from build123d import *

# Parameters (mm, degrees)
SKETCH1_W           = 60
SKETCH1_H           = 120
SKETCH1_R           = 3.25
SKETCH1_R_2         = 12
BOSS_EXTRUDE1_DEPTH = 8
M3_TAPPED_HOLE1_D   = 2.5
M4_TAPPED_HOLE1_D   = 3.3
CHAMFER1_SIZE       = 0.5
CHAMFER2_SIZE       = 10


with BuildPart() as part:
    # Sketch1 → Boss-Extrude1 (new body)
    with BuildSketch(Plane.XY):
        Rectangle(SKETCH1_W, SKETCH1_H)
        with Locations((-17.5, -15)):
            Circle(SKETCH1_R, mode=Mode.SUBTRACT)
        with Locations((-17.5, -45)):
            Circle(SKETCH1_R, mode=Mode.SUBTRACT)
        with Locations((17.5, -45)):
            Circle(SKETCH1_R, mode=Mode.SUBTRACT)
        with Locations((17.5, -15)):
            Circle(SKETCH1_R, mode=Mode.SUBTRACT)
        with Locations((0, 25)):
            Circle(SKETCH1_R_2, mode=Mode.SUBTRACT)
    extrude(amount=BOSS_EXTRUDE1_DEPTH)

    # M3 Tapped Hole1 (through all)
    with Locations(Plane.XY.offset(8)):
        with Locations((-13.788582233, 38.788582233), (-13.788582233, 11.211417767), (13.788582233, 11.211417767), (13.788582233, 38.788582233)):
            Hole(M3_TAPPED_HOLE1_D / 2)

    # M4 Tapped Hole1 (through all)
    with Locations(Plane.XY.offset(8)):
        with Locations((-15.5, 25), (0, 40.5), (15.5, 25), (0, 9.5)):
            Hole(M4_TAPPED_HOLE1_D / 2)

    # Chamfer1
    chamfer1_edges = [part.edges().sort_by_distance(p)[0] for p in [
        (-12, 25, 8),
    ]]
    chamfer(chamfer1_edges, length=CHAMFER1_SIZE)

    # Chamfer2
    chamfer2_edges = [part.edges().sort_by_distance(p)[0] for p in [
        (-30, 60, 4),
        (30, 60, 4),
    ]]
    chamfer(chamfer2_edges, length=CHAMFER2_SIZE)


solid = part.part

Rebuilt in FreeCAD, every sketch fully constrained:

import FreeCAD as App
import Part
import Sketcher

V = App.Vector
Q = App.Units.Quantity


def edges_at(feature, points):
    """Names of the edges that pass closest to the given points."""
    edges = feature.Shape.Edges
    near = lambda p: min(range(len(edges)), key=lambda i: edges[i].distToShape(Part.Vertex(*p))[0])
    return sorted({f"Edge{near(p) + 1}" for p in points})


def add_polygon(sketch, points):
    """Adds a closed chain of lines whose ends are joined by coincident constraints."""
    first, n = sketch.GeometryCount, len(points)
    for a, b in zip(points, points[1:] + points[:1]):
        sketch.addGeometry(Part.LineSegment(App.Vector(*a, 0), App.Vector(*b, 0)), False)
    for i in range(n):
        sketch.addConstraint(Sketcher.Constraint("Coincident", first + i, 2, first + (i + 1) % n, 1))

doc = App.newDocument("Part")
body = doc.addObject("PartDesign::Body", "Body")

sketch1 = body.newObject("Sketcher::SketchObject", "Sketch")
sketch1.AttachmentSupport = (doc.getObject("XY_Plane"), [""])
sketch1.MapMode = "FlatFace"
add_polygon(sketch1, [(-30, 60), (-30, -60), (30, -60), (30, 60)])
sketch1.addGeometry(Part.Circle(V(-17.5, -45, 0), V(0, 0, 1), 3.2), False)
sketch1.addGeometry(Part.Circle(V(-17.5, -15, 0), V(0, 0, 1), 3.2), False)
sketch1.addGeometry(Part.Circle(V(17.5, -45, 0), V(0, 0, 1), 3.2), False)
sketch1.addGeometry(Part.Circle(V(17.5, -15, 0), V(0, 0, 1), 3.2), False)
sketch1.addGeometry(Part.Circle(V(0, 25, 0), V(0, 0, 1), 12), False)
sketch1.addConstraint([
    Sketcher.Constraint("Vertical", 0),
    Sketcher.Constraint("Horizontal", 1),
    Sketcher.Constraint("Vertical", 2),
    Sketcher.Constraint("Horizontal", 3),
    Sketcher.Constraint("Equal", 4, 5),
    Sketcher.Constraint("Equal", 5, 6),
    Sketcher.Constraint("Equal", 6, 7),
    Sketcher.Constraint("Symmetric", 0, 2, 2, 2, -1, 1),
    Sketcher.Constraint("Symmetric", 4, 3, 6, 3, -2),
    Sketcher.Constraint("Symmetric", 5, 3, 7, 3, -2),
    Sketcher.Constraint("PointOnObject", 8, 3, -2),
    Sketcher.Constraint("Vertical", 4, 3, 5, 3),
    Sketcher.Constraint("Diameter", 8, Q("24 mm")),
    Sketcher.Constraint("Diameter", 4, Q("6.5 mm")),
    Sketcher.Constraint("DistanceX", 1, 1, 1, 2, Q("60 mm")),
    Sketcher.Constraint("DistanceY", 0, 2, 0, 1, Q("120 mm")),
    Sketcher.Constraint("DistanceY", 4, 3, -1, 1, Q("45 mm")),
    Sketcher.Constraint("DistanceY", 5, 3, -1, 1, Q("15 mm")),
    Sketcher.Constraint("DistanceY", -1, 1, 8, 3, Q("25 mm")),
    Sketcher.Constraint("DistanceX", 4, 3, 6, 3, Q("35 mm")),
])
pad1 = body.newObject("PartDesign::Pad", "Pad")
pad1.Profile = sketch1
pad1.Length = 8

sketch2 = body.newObject("Sketcher::SketchObject", "Sketch001")
sketch2.AttachmentSupport = (doc.getObject("XY_Plane"), [""])
sketch2.MapMode = "FlatFace"
sketch2.AttachmentOffset = App.Placement(V(0, 0, 8), App.Rotation())
sketch2.addGeometry([
    Part.Circle(V(-13.8, 38.8, 0), V(0, 0, 1), 1.2),
    Part.Circle(V(-13.8, 11.2, 0), V(0, 0, 1), 1.2),
    Part.Circle(V(13.8, 11.2, 0), V(0, 0, 1), 1.2),
    Part.Circle(V(13.8, 38.8, 0), V(0, 0, 1), 1.2),
], False)
sketch2.addConstraint([
    Sketcher.Constraint("Equal", 0, 1),
    Sketcher.Constraint("Equal", 1, 2),
    Sketcher.Constraint("Equal", 2, 3),
    Sketcher.Constraint("Symmetric", 1, 3, 2, 3, -2),
    Sketcher.Constraint("Symmetric", 0, 3, 3, 3, -2),
    Sketcher.Constraint("Vertical", 0, 3, 1, 3),
    Sketcher.Constraint("Diameter", 0, Q("2.5 mm")),
    Sketcher.Constraint("DistanceX", 0, 3, -1, 1, Q("13.788582 mm")),
    Sketcher.Constraint("DistanceY", -1, 1, 0, 3, Q("38.788582 mm")),
    Sketcher.Constraint("DistanceY", -1, 1, 1, 3, Q("11.211418 mm")),
])
doc.recompute()
hole = body.newObject("PartDesign::Hole", "Hole")
hole.Profile = sketch2
hole.ThreadType = "None"
hole.Diameter = 2.5
hole.DepthType = "ThroughAll"

sketch3 = body.newObject("Sketcher::SketchObject", "Sketch002")
sketch3.AttachmentSupport = (doc.getObject("XY_Plane"), [""])
sketch3.MapMode = "FlatFace"
sketch3.AttachmentOffset = App.Placement(V(0, 0, 8), App.Rotation())
sketch3.addGeometry([
    Part.Circle(V(-15.5, 25, 0), V(0, 0, 1), 1.6),
    Part.Circle(V(0, 40.5, 0), V(0, 0, 1), 1.6),
    Part.Circle(V(15.5, 25, 0), V(0, 0, 1), 1.6),
    Part.Circle(V(0, 9.5, 0), V(0, 0, 1), 1.6),
], False)
sketch3.addConstraint([
    Sketcher.Constraint("Equal", 0, 1),
    Sketcher.Constraint("Equal", 1, 2),
    Sketcher.Constraint("Equal", 2, 3),
    Sketcher.Constraint("Symmetric", 0, 3, 2, 3, -2),
    Sketcher.Constraint("PointOnObject", 1, 3, -2),
    Sketcher.Constraint("PointOnObject", 3, 3, -2),
    Sketcher.Constraint("Diameter", 0, Q("3.3 mm")),
    Sketcher.Constraint("DistanceY", -1, 1, 0, 3, Q("25 mm")),
    Sketcher.Constraint("DistanceX", 0, 3, 2, 3, Q("31 mm")),
    Sketcher.Constraint("DistanceY", 3, 3, 1, 3, Q("31 mm")),
    Sketcher.Constraint("DistanceY", -1, 1, 1, 3, Q("40.5 mm")),
])
doc.recompute()
hole2 = body.newObject("PartDesign::Hole", "Hole001")
hole2.Profile = sketch3
hole2.ThreadType = "None"
hole2.Diameter = 3.3
hole2.DepthType = "ThroughAll"
doc.recompute()

chamfer = body.newObject("PartDesign::Chamfer", "Chamfer")
chamfer.Base = (hole2, edges_at(hole2, [(-12, 25, 8)]))
chamfer.Size = 0.5
doc.recompute()

chamfer2 = body.newObject("PartDesign::Chamfer", "Chamfer001")
chamfer2.Base = (chamfer, edges_at(chamfer, [(-30, 60, 4), (30, 60, 4)]))
chamfer2.Size = 10

doc.recompute()
